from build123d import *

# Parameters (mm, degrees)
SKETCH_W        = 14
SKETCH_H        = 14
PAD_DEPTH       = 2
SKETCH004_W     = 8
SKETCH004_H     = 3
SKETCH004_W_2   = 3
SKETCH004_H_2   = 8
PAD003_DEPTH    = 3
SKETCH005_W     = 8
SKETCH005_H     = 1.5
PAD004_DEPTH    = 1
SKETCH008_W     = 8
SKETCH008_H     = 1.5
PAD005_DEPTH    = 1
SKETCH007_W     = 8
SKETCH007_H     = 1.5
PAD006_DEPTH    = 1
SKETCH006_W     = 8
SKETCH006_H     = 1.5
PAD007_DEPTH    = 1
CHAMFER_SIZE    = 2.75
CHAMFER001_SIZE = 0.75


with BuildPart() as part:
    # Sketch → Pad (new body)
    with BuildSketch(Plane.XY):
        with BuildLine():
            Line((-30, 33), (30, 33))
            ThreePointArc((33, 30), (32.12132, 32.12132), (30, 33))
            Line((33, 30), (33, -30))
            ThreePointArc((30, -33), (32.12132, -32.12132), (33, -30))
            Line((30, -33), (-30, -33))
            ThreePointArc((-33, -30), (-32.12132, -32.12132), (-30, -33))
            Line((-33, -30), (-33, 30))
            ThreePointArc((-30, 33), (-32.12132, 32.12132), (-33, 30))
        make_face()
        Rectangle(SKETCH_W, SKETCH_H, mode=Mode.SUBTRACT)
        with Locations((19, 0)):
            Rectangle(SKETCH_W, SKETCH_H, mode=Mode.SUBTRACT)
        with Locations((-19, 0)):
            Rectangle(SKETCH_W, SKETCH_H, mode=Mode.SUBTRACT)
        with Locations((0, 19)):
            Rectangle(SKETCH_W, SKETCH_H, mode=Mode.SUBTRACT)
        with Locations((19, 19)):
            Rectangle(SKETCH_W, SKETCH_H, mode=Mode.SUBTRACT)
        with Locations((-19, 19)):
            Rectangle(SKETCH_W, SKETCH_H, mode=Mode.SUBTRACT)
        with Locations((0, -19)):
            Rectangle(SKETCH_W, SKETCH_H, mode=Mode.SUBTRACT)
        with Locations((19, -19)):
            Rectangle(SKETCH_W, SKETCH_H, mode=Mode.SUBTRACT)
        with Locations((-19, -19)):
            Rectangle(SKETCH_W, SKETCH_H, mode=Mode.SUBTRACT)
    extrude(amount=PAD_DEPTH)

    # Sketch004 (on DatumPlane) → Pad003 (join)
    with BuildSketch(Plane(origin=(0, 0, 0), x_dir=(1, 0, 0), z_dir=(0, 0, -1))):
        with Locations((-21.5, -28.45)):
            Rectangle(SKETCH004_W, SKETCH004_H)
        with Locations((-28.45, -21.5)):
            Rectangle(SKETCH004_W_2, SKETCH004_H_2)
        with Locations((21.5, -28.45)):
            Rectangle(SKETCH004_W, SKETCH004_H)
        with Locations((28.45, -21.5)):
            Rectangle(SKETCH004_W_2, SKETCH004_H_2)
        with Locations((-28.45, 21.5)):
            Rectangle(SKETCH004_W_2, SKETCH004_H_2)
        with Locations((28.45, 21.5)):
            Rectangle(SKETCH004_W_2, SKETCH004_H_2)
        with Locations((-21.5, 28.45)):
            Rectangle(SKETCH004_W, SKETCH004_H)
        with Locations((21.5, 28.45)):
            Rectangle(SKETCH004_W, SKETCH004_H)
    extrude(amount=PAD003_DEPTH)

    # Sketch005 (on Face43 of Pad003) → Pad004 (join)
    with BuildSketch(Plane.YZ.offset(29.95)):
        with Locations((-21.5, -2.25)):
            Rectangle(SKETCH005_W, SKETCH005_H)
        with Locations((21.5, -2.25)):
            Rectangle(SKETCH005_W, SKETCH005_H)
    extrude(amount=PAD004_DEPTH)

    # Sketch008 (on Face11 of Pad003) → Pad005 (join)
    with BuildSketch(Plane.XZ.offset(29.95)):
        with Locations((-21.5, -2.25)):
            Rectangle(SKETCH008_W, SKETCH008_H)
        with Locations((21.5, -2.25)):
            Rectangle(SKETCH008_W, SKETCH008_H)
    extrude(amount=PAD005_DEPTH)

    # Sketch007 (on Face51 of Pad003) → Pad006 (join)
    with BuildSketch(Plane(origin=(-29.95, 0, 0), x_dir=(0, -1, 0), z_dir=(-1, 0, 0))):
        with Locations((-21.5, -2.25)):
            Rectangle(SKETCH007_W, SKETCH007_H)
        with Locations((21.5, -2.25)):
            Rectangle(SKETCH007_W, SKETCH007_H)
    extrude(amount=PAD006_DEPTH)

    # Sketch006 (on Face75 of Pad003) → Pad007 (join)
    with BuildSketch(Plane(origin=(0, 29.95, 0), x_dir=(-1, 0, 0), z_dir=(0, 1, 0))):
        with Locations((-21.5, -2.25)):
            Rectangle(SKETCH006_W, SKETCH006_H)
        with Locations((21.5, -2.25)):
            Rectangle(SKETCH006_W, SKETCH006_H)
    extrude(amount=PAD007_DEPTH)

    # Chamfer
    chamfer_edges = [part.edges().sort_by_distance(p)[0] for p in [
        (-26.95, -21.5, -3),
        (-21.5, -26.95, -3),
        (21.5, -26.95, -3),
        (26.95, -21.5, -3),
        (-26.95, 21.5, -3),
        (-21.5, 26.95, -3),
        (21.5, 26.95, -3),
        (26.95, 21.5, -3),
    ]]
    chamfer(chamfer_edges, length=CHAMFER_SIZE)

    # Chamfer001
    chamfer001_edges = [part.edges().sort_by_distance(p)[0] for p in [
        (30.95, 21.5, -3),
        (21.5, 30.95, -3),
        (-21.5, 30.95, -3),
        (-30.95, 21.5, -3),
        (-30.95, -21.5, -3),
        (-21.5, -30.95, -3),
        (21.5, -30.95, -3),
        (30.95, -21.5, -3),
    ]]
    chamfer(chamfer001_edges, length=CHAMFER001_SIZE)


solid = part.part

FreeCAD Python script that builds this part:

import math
import FreeCAD as App
import Part
import Sketcher
Q = App.Units.Quantity


def edges_at(feature, points):
    """Names of the edges that pass closest to the given points."""
    edges = feature.Shape.Edges
    near = lambda p: min(range(len(edges)), key=lambda i: edges[i].distToShape(Part.Vertex(*p))[0])
    return sorted({f"Edge{near(p) + 1}" for p in points})


def add_polygon(sketch, points):
    """Adds a closed chain of lines whose ends are joined by coincident constraints."""
    first, n = sketch.GeometryCount, len(points)
    for a, b in zip(points, points[1:] + points[:1]):
        sketch.addGeometry(Part.LineSegment(App.Vector(*a, 0), App.Vector(*b, 0)), False)
    for i in range(n):
        sketch.addConstraint(Sketcher.Constraint("Coincident", first + i, 2, first + (i + 1) % n, 1))

doc = App.newDocument("Part")
params = doc.addObject("Spreadsheet::Sheet", "Params")
for row, (alias, value) in enumerate([
    ("sketch1_radius", "3.000001 mm"),
    ("sketch1_width", "60 mm"),
    ("sketch1_width2", "14 mm"),
    ("pad1_length", "2 mm"),
    ("sketch2_width", "8 mm"),
    ("sketch2_width2", "3 mm"),
    ("pad2_length", "3 mm"),
    ("sketch3_width", "8 mm"),
    ("sketch3_height", "1.5 mm"),
    ("pad3_length", "1 mm"),
    ("sketch4_width", "8 mm"),
    ("sketch4_height", "1.5 mm"),
    ("pad4_length", "1 mm"),
    ("sketch5_width", "8 mm"),
    ("sketch5_height", "1.5 mm"),
    ("pad5_length", "1 mm"),
    ("sketch6_width", "8 mm"),
    ("sketch6_height", "1.5 mm"),
    ("pad6_length", "1 mm"),
    ("chamfer_size", "2.75 mm"),
    ("chamfer2_size", "0.75 mm"),
], start=1):
    params.set(f"A{row}", alias)
    params.set(f"B{row}", "=" + value)
    params.setAlias(f"B{row}", alias)

body = doc.addObject("PartDesign::Body", "Body")

sketch1 = doc.addObject("Sketcher::SketchObject", "Sketch")
body.addObject(sketch1)
sketch1.AttachmentSupport = (doc.XY_Plane, [""])
sketch1.MapMode = "FlatFace"
sketch1.addGeometry(Part.LineSegment(App.Vector(30, 33, 0), App.Vector(-30, 33, 0)), False)
sketch1.addGeometry(Part.ArcOfCircle(Part.Circle(App.Vector(-30, 30, 0), App.Vector(0, 0, 1), 3), math.radians(90), math.radians(180)), False)
sketch1.addGeometry(Part.LineSegment(App.Vector(-33, 30, 0), App.Vector(-33, -30, 0)), False)
sketch1.addGeometry(Part.ArcOfCircle(Part.Circle(App.Vector(-30, -30, 0), App.Vector(0, 0, 1), 3), math.radians(-180), math.radians(-90)), False)
sketch1.addGeometry(Part.LineSegment(App.Vector(-30, -33, 0), App.Vector(30, -33, 0)), False)
sketch1.addGeometry(Part.ArcOfCircle(Part.Circle(App.Vector(30, -30, 0), App.Vector(0, 0, 1), 3), math.radians(-90), math.radians(0)), False)
sketch1.addGeometry(Part.LineSegment(App.Vector(33, -30, 0), App.Vector(33, 30, 0)), False)
sketch1.addGeometry(Part.ArcOfCircle(Part.Circle(App.Vector(30, 30, 0), App.Vector(0, 0, 1), 3), math.radians(0), math.radians(90)), False)
add_polygon(sketch1, [(12, -26), (12, -12), (26, -12), (26, -26)])
add_polygon(sketch1, [(-7, -26), (-7, -12), (7, -12), (7, -26)])
add_polygon(sketch1, [(-26, -26), (-26, -12), (-12, -12), (-12, -26)])
add_polygon(sketch1, [(12, -7), (12, 7), (26, 7), (26, -7)])
add_polygon(sketch1, [(12, 12), (12, 26), (26, 26), (26, 12)])
add_polygon(sketch1, [(-7, -7), (-7, 7), (7, 7), (7, -7)])
add_polygon(sketch1, [(-26, -7), (-26, 7), (-12, 7), (-12, -7)])
add_polygon(sketch1, [(-7, 12), (-7, 26), (7, 26), (7, 12)])
add_polygon(sketch1, [(-26, 12), (-26, 26), (-12, 26), (-12, 12)])
sketch1.addConstraint([
    Sketcher.Constraint("Tangent", 0, 2, 1, 1),
    Sketcher.Constraint("Tangent", 1, 2, 2, 1),
    Sketcher.Constraint("Tangent", 2, 2, 3, 1),
    Sketcher.Constraint("Tangent", 3, 2, 4, 1),
    Sketcher.Constraint("Tangent", 4, 2, 5, 1),
    Sketcher.Constraint("Tangent", 5, 2, 6, 1),
    Sketcher.Constraint("Tangent", 6, 2, 7, 1),
    Sketcher.Constraint("Tangent", 7, 2, 0, 1),
    Sketcher.Constraint("Horizontal", 0),
    Sketcher.Constraint("Vertical", 2),
    Sketcher.Constraint("Horizontal", 4),
    Sketcher.Constraint("Vertical", 6),
    Sketcher.Constraint("Vertical", 8),
    Sketcher.Constraint("Horizontal", 9),
    Sketcher.Constraint("Vertical", 10),
    Sketcher.Constraint("Horizontal", 11),
    Sketcher.Constraint("Vertical", 12),
    Sketcher.Constraint("Horizontal", 13),
    Sketcher.Constraint("Vertical", 14),
    Sketcher.Constraint("Horizontal", 15),
    Sketcher.Constraint("Vertical", 16),
    Sketcher.Constraint("Horizontal", 17),
    Sketcher.Constraint("Vertical", 18),
    Sketcher.Constraint("Horizontal", 19),
    Sketcher.Constraint("Vertical", 20),
    Sketcher.Constraint("Horizontal", 21),
    Sketcher.Constraint("Vertical", 22),
    Sketcher.Constraint("Horizontal", 23),
    Sketcher.Constraint("Vertical", 24),
    Sketcher.Constraint("Horizontal", 25),
    Sketcher.Constraint("Vertical", 26),
    Sketcher.Constraint("Horizontal", 27),
    Sketcher.Constraint("Vertical", 28),
    Sketcher.Constraint("Horizontal", 29),
    Sketcher.Constraint("Vertical", 30),
    Sketcher.Constraint("Horizontal", 31),
    Sketcher.Constraint("Vertical", 32),
    Sketcher.Constraint("Horizontal", 33),
    Sketcher.Constraint("Vertical", 34),
    Sketcher.Constraint("Horizontal", 35),
    Sketcher.Constraint("Vertical", 36),
    Sketcher.Constraint("Horizontal", 37),
    Sketcher.Constraint("Vertical", 38),
    Sketcher.Constraint("Horizontal", 39),
    Sketcher.Constraint("Vertical", 40),
    Sketcher.Constraint("Horizontal", 41),
    Sketcher.Constraint("Vertical", 42),
    Sketcher.Constraint("Horizontal", 43),
    Sketcher.Constraint("Equal", 1, 3),
    Sketcher.Constraint("Equal", 3, 5),
    Sketcher.Constraint("Equal", 5, 7),
    Sketcher.Constraint("Symmetric", 1, 3, 5, 3, -1, 1),
    Sketcher.Constraint("Symmetric", 18, 2, 24, 2, -1, 1),
    Sketcher.Constraint("Symmetric", 16, 2, 26, 2, -1, 1),
    Sketcher.Constraint("Symmetric", 28, 2, 30, 2, -1, 1),
    Sketcher.Constraint("Symmetric", 22, 2, 32, 2, -1, 1),
    Sketcher.Constraint("Symmetric", 20, 2, 34, 2, -1, 1),
    Sketcher.Constraint("Symmetric", 14, 2, 36, 2, -1, 1),
    Sketcher.Constraint("Symmetric", 12, 2, 38, 2, -1, 1),
    Sketcher.Constraint("Symmetric", 10, 2, 40, 2, -1, 1),
    Sketcher.Constraint("Symmetric", 8, 2, 42, 2, -1, 1),
    Sketcher.Constraint("Symmetric", 9, 2, 16, 2, -2),
    Sketcher.Constraint("Symmetric", 11, 2, 18, 2, -2),
    Sketcher.Constraint("Horizontal", 9, 2, 12, 2),
    Sketcher.Constraint("Horizontal", 11, 2, 14, 2),
    Sketcher.Constraint("Horizontal", 21, 2, 28, 2),
    Sketcher.Constraint("Horizontal", 23, 2, 30, 2),
    Sketcher.Constraint("Vertical", 11, 2, 20, 2),
    Sketcher.Constraint("Vertical", 10, 2, 21, 2),
    Sketcher.Constraint("Vertical", 15, 2, 28, 2),
    Sketcher.Constraint("Vertical", 14, 2, 29, 2),
    Sketcher.Constraint("Equal", 11, 13),
    Sketcher.Constraint("Equal", 4, 2),
    Sketcher.Constraint("Equal", 43, 8),
    Sketcher.Constraint("Equal", 18, 20),
    Sketcher.Constraint("Radius", 1, Q("3.000001 mm")),
    Sketcher.Constraint("DistanceX", 0, 2, 0, 1, Q("60 mm")),
    Sketcher.Constraint("DistanceX", 9, 1, 9, 2, Q("14 mm")),
    Sketcher.Constraint("DistanceX", -1, 1, 8, 2, Q("12 mm")),
    Sketcher.Constraint("DistanceY", 8, 2, -1, 1, Q("12 mm")),
])
sketch1.setExpression("Constraints[111]", "Params.sketch1_radius")
sketch1.setExpression("Constraints[112]", "Params.sketch1_width")
sketch1.setExpression("Constraints[113]", "Params.sketch1_width2")
pad1 = doc.addObject("PartDesign::Pad", "Pad")
body.addObject(pad1)
pad1.Profile = sketch1
pad1.setExpression("Length", "Params.pad1_length")

sketch2 = doc.addObject("Sketcher::SketchObject", "Sketch001")
body.addObject(sketch2)
sketch2.AttachmentSupport = (doc.XY_Plane, [""])
sketch2.MapMode = "FlatFace"
add_polygon(sketch2, [(-25.5, 26.9), (-25.5, 29.9), (-17.5, 29.9), (-17.5, 26.9)])
add_polygon(sketch2, [(-29.9, 17.5), (-29.9, 25.5), (-26.9, 25.5), (-26.9, 17.5)])
add_polygon(sketch2, [(17.5, 26.9), (17.5, 29.9), (25.5, 29.9), (25.5, 26.9)])
add_polygon(sketch2, [(26.9, 17.5), (26.9, 25.5), (29.9, 25.5), (29.9, 17.5)])
add_polygon(sketch2, [(-29.9, -25.5), (-29.9, -17.5), (-26.9, -17.5), (-26.9, -25.5)])
add_polygon(sketch2, [(26.9, -25.5), (26.9, -17.5), (29.9, -17.5), (29.9, -25.5)])
add_polygon(sketch2, [(-25.5, -29.9), (-25.5, -26.9), (-17.5, -26.9), (-17.5, -29.9)])
add_polygon(sketch2, [(17.5, -29.9), (17.5, -26.9), (25.5, -26.9), (25.5, -29.9)])
sketch2.addConstraint([
    Sketcher.Constraint("Vertical", 0),
    Sketcher.Constraint("Horizontal", 1),
    Sketcher.Constraint("Vertical", 2),
    Sketcher.Constraint("Horizontal", 3),
    Sketcher.Constraint("Vertical", 4),
    Sketcher.Constraint("Horizontal", 5),
    Sketcher.Constraint("Vertical", 6),
    Sketcher.Constraint("Horizontal", 7),
    Sketcher.Constraint("Vertical", 8),
    Sketcher.Constraint("Horizontal", 9),
    Sketcher.Constraint("Vertical", 10),
    Sketcher.Constraint("Horizontal", 11),
    Sketcher.Constraint("Vertical", 12),
    Sketcher.Constraint("Horizontal", 13),
    Sketcher.Constraint("Vertical", 14),
    Sketcher.Constraint("Horizontal", 15),
    Sketcher.Constraint("Vertical", 16),
    Sketcher.Constraint("Horizontal", 17),
    Sketcher.Constraint("Vertical", 18),
    Sketcher.Constraint("Horizontal", 19),
    Sketcher.Constraint("Vertical", 20),
    Sketcher.Constraint("Horizontal", 21),
    Sketcher.Constraint("Vertical", 22),
    Sketcher.Constraint("Horizontal", 23),
    Sketcher.Constraint("Vertical", 24),
    Sketcher.Constraint("Horizontal", 25),
    Sketcher.Constraint("Vertical", 26),
    Sketcher.Constraint("Horizontal", 27),
    Sketcher.Constraint("Vertical", 28),
    Sketcher.Constraint("Horizontal", 29),
    Sketcher.Constraint("Vertical", 30),
    Sketcher.Constraint("Horizontal", 31),
    Sketcher.Constraint("Symmetric", 14, 2, 16, 2, -1, 1),
    Sketcher.Constraint("Symmetric", 12, 2, 18, 2, -1, 1),
    Sketcher.Constraint("Symmetric", 6, 2, 20, 2, -1, 1),
    Sketcher.Constraint("Symmetric", 4, 2, 22, 2, -1, 1),
    Sketcher.Constraint("Symmetric", 10, 2, 24, 2, -1, 1),
    Sketcher.Constraint("Symmetric", 8, 2, 26, 2, -1, 1),
    Sketcher.Constraint("Symmetric", 2, 2, 28, 2, -1, 1),
    Sketcher.Constraint("Symmetric", 0, 2, 30, 2, -1, 1),
    Sketcher.Constraint("Symmetric", 1, 2, 8, 2, -2),
    Sketcher.Constraint("Symmetric", 3, 2, 10, 2, -2),
    Sketcher.Constraint("Symmetric", 5, 2, 12, 2, -2),
    Sketcher.Constraint("Symmetric", 7, 2, 14, 2, -2),
    Sketcher.Constraint("Equal", 23, 0),
    Sketcher.Constraint("Equal", 31, 4),
    Sketcher.Constraint("DistanceX", 1, 1, 1, 2, Q("8 mm")),
    Sketcher.Constraint("DistanceX", 5, 1, 5, 2, Q("3 mm")),
    Sketcher.Constraint("DistanceX", 1, 2, 8, 2, Q("35 mm")),
    Sketcher.Constraint("DistanceY", 16, 2, 7, 2, Q("35 mm")),
    Sketcher.Constraint("DistanceY", -1, 1, 0, 2, Q("29.95 mm")),
    Sketcher.Constraint("DistanceX", 4, 2, -1, 1, Q("29.95 mm")),
])
sketch2.setExpression("Constraints[78]", "Params.sketch2_width")
sketch2.setExpression("Constraints[79]", "Params.sketch2_width2")
pad2 = doc.addObject("PartDesign::Pad", "Pad001")
body.addObject(pad2)
pad2.Profile = sketch2
pad2.setExpression("Length", "Params.pad2_length")
pad2.Reversed = True

sketch3 = doc.addObject("Sketcher::SketchObject", "Sketch002")
body.addObject(sketch3)
sketch3.AttachmentSupport = (doc.YZ_Plane, [""])
sketch3.MapMode = "FlatFace"
sketch3.AttachmentOffset = App.Placement(App.Vector(0, 0, 29.95), App.Rotation())
add_polygon(sketch3, [(-25.5, -1.5), (-25.5, -3), (-17.5, -3), (-17.5, -1.5)])
add_polygon(sketch3, [(17.5, -1.5), (17.5, -3), (25.5, -3), (25.5, -1.5)])
sketch3.addConstraint([
    Sketcher.Constraint("Vertical", 0),
    Sketcher.Constraint("Horizontal", 1),
    Sketcher.Constraint("Vertical", 2),
    Sketcher.Constraint("Horizontal", 3),
    Sketcher.Constraint("Vertical", 4),
    Sketcher.Constraint("Horizontal", 5),
    Sketcher.Constraint("Vertical", 6),
    Sketcher.Constraint("Horizontal", 7),
    Sketcher.Constraint("Symmetric", 1, 2, 4, 2, -2),
    Sketcher.Constraint("Symmetric", 3, 2, 6, 2, -2),
    Sketcher.Constraint("DistanceX", 1, 1, 1, 2, Q("8 mm")),
    Sketcher.Constraint("DistanceY", 0, 2, 0, 1, Q("1.5 mm")),
    Sketcher.Constraint("DistanceY", 0, 2, -1, 1, Q("3 mm")),
    Sketcher.Constraint("DistanceX", 1, 2, 4, 2, Q("35 mm")),
])
sketch3.setExpression("Constraints[18]", "Params.sketch3_width")
sketch3.setExpression("Constraints[19]", "Params.sketch3_height")
pad3 = doc.addObject("PartDesign::Pad", "Pad002")
body.addObject(pad3)
pad3.Profile = sketch3
pad3.setExpression("Length", "Params.pad3_length")

sketch4 = doc.addObject("Sketcher::SketchObject", "Sketch003")
body.addObject(sketch4)
sketch4.AttachmentSupport = (doc.XZ_Plane, [""])
sketch4.MapMode = "FlatFace"
sketch4.AttachmentOffset = App.Placement(App.Vector(0, 0, 29.95), App.Rotation())
add_polygon(sketch4, [(-25.5, -1.5), (-25.5, -3), (-17.5, -3), (-17.5, -1.5)])
add_polygon(sketch4, [(17.5, -1.5), (17.5, -3), (25.5, -3), (25.5, -1.5)])
sketch4.addConstraint([
    Sketcher.Constraint("Vertical", 0),
    Sketcher.Constraint("Horizontal", 1),
    Sketcher.Constraint("Vertical", 2),
    Sketcher.Constraint("Horizontal", 3),
    Sketcher.Constraint("Vertical", 4),
    Sketcher.Constraint("Horizontal", 5),
    Sketcher.Constraint("Vertical", 6),
    Sketcher.Constraint("Horizontal", 7),
    Sketcher.Constraint("Symmetric", 1, 2, 4, 2, -2),
    Sketcher.Constraint("Symmetric", 3, 2, 6, 2, -2),
    Sketcher.Constraint("DistanceX", 1, 1, 1, 2, Q("8 mm")),
    Sketcher.Constraint("DistanceY", 0, 2, 0, 1, Q("1.5 mm")),
    Sketcher.Constraint("DistanceY", 0, 2, -1, 1, Q("3 mm")),
    Sketcher.Constraint("DistanceX", 1, 2, 4, 2, Q("35 mm")),
])
sketch4.setExpression("Constraints[18]", "Params.sketch4_width")
sketch4.setExpression("Constraints[19]", "Params.sketch4_height")
pad4 = doc.addObject("PartDesign::Pad", "Pad003")
body.addObject(pad4)
pad4.Profile = sketch4
pad4.setExpression("Length", "Params.pad4_length")

sketch5 = doc.addObject("Sketcher::SketchObject", "Sketch004")
body.addObject(sketch5)
sketch5.AttachmentSupport = (doc.YZ_Plane, [""])
sketch5.MapMode = "FlatFace"
sketch5.AttachmentOffset = App.Placement(App.Vector(0, 0, -29.95), App.Rotation())
add_polygon(sketch5, [(25.5, -1.5), (25.5, -3), (17.5, -3), (17.5, -1.5)])
add_polygon(sketch5, [(-17.5, -1.5), (-17.5, -3), (-25.5, -3), (-25.5, -1.5)])
sketch5.addConstraint([
    Sketcher.Constraint("Vertical", 0),
    Sketcher.Constraint("Horizontal", 1),
    Sketcher.Constraint("Vertical", 2),
    Sketcher.Constraint("Horizontal", 3),
    Sketcher.Constraint("Vertical", 4),
    Sketcher.Constraint("Horizontal", 5),
    Sketcher.Constraint("Vertical", 6),
    Sketcher.Constraint("Horizontal", 7),
    Sketcher.Constraint("Symmetric", 1, 2, 4, 2, -2),
    Sketcher.Constraint("Symmetric", 3, 2, 6, 2, -2),
    Sketcher.Constraint("DistanceX", 1, 2, 1, 1, Q("8 mm")),
    Sketcher.Constraint("DistanceY", 0, 2, 0, 1, Q("1.5 mm")),
    Sketcher.Constraint("DistanceY", 0, 2, -1, 1, Q("3 mm")),
    Sketcher.Constraint("DistanceX", 4, 2, 1, 2, Q("35 mm")),
])
sketch5.setExpression("Constraints[18]", "Params.sketch5_width")
sketch5.setExpression("Constraints[19]", "Params.sketch5_height")
pad5 = doc.addObject("PartDesign::Pad", "Pad004")
body.addObject(pad5)
pad5.Profile = sketch5
pad5.setExpression("Length", "Params.pad5_length")
pad5.Reversed = True

sketch6 = doc.addObject("Sketcher::SketchObject", "Sketch005")
body.addObject(sketch6)
sketch6.AttachmentSupport = (doc.XZ_Plane, [""])
sketch6.MapMode = "FlatFace"
sketch6.AttachmentOffset = App.Placement(App.Vector(0, 0, -29.95), App.Rotation())
add_polygon(sketch6, [(25.5, -1.5), (25.5, -3), (17.5, -3), (17.5, -1.5)])
add_polygon(sketch6, [(-17.5, -1.5), (-17.5, -3), (-25.5, -3), (-25.5, -1.5)])
sketch6.addConstraint([
    Sketcher.Constraint("Vertical", 0),
    Sketcher.Constraint("Horizontal", 1),
    Sketcher.Constraint("Vertical", 2),
    Sketcher.Constraint("Horizontal", 3),
    Sketcher.Constraint("Vertical", 4),
    Sketcher.Constraint("Horizontal", 5),
    Sketcher.Constraint("Vertical", 6),
    Sketcher.Constraint("Horizontal", 7),
    Sketcher.Constraint("Symmetric", 1, 2, 4, 2, -2),
    Sketcher.Constraint("Symmetric", 3, 2, 6, 2, -2),
    Sketcher.Constraint("DistanceX", 1, 2, 1, 1, Q("8 mm")),
    Sketcher.Constraint("DistanceY", 0, 2, 0, 1, Q("1.5 mm")),
    Sketcher.Constraint("DistanceY", 0, 2, -1, 1, Q("3 mm")),
    Sketcher.Constraint("DistanceX", 4, 2, 1, 2, Q("35 mm")),
])
sketch6.setExpression("Constraints[18]", "Params.sketch6_width")
sketch6.setExpression("Constraints[19]", "Params.sketch6_height")
pad6 = doc.addObject("PartDesign::Pad", "Pad005")
body.addObject(pad6)
pad6.Profile = sketch6
pad6.setExpression("Length", "Params.pad6_length")
pad6.Reversed = True
doc.recompute()

chamfer = doc.addObject("PartDesign::Chamfer", "Chamfer")
body.addObject(chamfer)
chamfer.Base = (pad6, edges_at(pad6, [
    (-26.95, -21.5, -3),
    (-21.5, -26.95, -3),
    (21.5, -26.95, -3),
    (26.95, -21.5, -3),
    (-26.95, 21.5, -3),
    (-21.5, 26.95, -3),
    (21.5, 26.95, -3),
    (26.95, 21.5, -3),
]))
chamfer.setExpression("Size", "Params.chamfer_size")
doc.recompute()

chamfer2 = doc.addObject("PartDesign::Chamfer", "Chamfer001")
body.addObject(chamfer2)
chamfer2.Base = (chamfer, edges_at(chamfer, [
    (30.95, 21.5, -3),
    (21.5, 30.95, -3),
    (-21.5, 30.95, -3),
    (-30.95, 21.5, -3),
    (-30.95, -21.5, -3),
    (-21.5, -30.95, -3),
    (21.5, -30.95, -3),
    (30.95, -21.5, -3),
]))
chamfer2.setExpression("Size", "Params.chamfer2_size")

doc.recompute()
